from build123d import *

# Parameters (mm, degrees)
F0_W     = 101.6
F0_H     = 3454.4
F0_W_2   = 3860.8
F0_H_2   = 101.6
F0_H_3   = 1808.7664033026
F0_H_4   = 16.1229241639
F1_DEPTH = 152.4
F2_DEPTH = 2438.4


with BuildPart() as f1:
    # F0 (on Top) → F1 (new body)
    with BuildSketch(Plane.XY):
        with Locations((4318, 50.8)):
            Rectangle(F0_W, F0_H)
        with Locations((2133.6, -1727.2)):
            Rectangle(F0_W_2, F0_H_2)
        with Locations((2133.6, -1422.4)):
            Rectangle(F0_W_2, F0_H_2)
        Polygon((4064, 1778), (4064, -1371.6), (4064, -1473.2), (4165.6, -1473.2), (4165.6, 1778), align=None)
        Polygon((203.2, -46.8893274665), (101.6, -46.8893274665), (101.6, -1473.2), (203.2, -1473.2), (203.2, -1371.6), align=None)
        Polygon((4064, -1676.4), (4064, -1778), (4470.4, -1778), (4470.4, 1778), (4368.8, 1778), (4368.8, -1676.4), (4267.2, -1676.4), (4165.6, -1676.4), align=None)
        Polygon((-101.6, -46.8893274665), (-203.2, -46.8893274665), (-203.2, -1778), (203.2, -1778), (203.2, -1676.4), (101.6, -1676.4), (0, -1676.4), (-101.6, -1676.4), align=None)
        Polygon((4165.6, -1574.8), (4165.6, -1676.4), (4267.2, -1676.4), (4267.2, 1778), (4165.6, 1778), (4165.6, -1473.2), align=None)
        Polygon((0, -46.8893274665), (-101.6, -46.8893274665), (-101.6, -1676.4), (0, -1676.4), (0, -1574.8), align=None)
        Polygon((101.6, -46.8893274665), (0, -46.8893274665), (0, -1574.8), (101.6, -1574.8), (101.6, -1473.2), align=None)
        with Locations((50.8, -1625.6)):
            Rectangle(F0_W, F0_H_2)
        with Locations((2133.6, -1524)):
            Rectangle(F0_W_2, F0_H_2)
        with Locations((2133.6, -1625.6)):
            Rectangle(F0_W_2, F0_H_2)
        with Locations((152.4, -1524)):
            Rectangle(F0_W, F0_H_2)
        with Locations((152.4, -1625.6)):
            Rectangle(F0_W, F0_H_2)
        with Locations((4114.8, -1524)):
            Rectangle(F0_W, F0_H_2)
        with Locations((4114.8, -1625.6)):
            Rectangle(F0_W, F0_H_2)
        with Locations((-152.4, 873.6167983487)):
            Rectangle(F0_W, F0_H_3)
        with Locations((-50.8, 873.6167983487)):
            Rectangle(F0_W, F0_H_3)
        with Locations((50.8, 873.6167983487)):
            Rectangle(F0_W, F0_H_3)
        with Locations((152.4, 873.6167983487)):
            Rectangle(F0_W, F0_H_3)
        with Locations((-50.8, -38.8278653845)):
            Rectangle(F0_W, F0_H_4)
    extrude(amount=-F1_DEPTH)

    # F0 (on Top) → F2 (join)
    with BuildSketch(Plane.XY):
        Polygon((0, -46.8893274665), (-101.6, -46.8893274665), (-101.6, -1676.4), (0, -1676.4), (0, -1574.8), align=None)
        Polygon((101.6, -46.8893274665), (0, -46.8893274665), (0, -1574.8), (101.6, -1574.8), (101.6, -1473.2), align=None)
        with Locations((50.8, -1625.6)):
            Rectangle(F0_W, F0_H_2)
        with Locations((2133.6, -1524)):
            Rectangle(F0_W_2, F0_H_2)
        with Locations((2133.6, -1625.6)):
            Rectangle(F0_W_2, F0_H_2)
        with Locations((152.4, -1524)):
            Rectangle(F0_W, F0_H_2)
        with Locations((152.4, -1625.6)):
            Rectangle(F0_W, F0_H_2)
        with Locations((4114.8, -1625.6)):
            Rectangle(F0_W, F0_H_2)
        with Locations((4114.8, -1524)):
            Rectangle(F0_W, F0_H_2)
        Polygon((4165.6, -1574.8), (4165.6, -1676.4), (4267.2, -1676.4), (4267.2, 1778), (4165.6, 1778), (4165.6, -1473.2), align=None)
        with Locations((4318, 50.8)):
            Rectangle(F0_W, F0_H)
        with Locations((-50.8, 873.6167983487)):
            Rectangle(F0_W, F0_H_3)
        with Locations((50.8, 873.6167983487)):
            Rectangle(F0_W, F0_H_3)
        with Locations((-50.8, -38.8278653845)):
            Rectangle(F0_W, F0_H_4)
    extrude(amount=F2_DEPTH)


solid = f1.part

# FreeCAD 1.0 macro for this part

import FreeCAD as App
import Part
import Sketcher
from FreeCAD import Vector
Q = App.Units.Quantity

doc = App.newDocument("Part")
body = doc.addObject("PartDesign::Body", "Body")

sketch1 = body.newObject("Sketcher::SketchObject", "Sketch")
sketch1.AttachmentSupport = (doc.getObject("XY_Plane"), [""])
sketch1.MapMode = "FlatFace"
sketch1.addGeometry(Part.LineSegment(Vector(-203.2, -46.889327, 0), Vector(-203.2, -1778, 0)), False)
sketch1.addGeometry(Part.LineSegment(Vector(-203.2, -1778, 0), Vector(4470.4, -1778, 0)), False)
sketch1.addGeometry(Part.LineSegment(Vector(4470.4, -1778, 0), Vector(4470.4, 1778, 0)), False)
sketch1.addGeometry(Part.LineSegment(Vector(4470.4, 1778, 0), Vector(4064, 1778, 0)), False)
sketch1.addGeometry(Part.LineSegment(Vector(4064, 1778, 0), Vector(4064, -1371.6, 0)), False)
sketch1.addGeometry(Part.LineSegment(Vector(4064, -1371.6, 0), Vector(203.2, -1371.6, 0)), False)
sketch1.addGeometry(Part.LineSegment(Vector(203.2, -1371.6, 0), Vector(203.2, -46.889327, 0)), False)
sketch1.addGeometry(Part.LineSegment(Vector(203.2, -46.889327, 0), Vector(0, -46.889327, 0)), False)
sketch1.addGeometry(Part.LineSegment(Vector(0, -46.889327, 0), Vector(0, -30.766403, 0)), False)
sketch1.addGeometry(Part.LineSegment(Vector(0, -30.766403, 0), Vector(203.2, -30.766403, 0)), False)
sketch1.addGeometry(Part.LineSegment(Vector(203.2, -30.766403, 0), Vector(203.2, 1778, 0)), False)
sketch1.addGeometry(Part.LineSegment(Vector(203.2, 1778, 0), Vector(-203.2, 1778, 0)), False)
sketch1.addGeometry(Part.LineSegment(Vector(-203.2, 1778, 0), Vector(-203.2, -30.766403, 0)), False)
sketch1.addGeometry(Part.LineSegment(Vector(-203.2, -30.766403, 0), Vector(-101.6, -30.766403, 0)), False)
sketch1.addGeometry(Part.LineSegment(Vector(-101.6, -30.766403, 0), Vector(-101.6, -46.889327, 0)), False)
sketch1.addGeometry(Part.LineSegment(Vector(-101.6, -46.889327, 0), Vector(-203.2, -46.889327, 0)), False)
sketch1.addConstraint(Sketcher.Constraint("Coincident", 0, 2, 1, 1))
sketch1.addConstraint(Sketcher.Constraint("Coincident", 1, 2, 2, 1))
sketch1.addConstraint(Sketcher.Constraint("Coincident", 2, 2, 3, 1))
sketch1.addConstraint(Sketcher.Constraint("Coincident", 3, 2, 4, 1))
sketch1.addConstraint(Sketcher.Constraint("Coincident", 4, 2, 5, 1))
sketch1.addConstraint(Sketcher.Constraint("Coincident", 5, 2, 6, 1))
sketch1.addConstraint(Sketcher.Constraint("Coincident", 6, 2, 7, 1))
sketch1.addConstraint(Sketcher.Constraint("Coincident", 7, 2, 8, 1))
sketch1.addConstraint(Sketcher.Constraint("Coincident", 8, 2, 9, 1))
sketch1.addConstraint(Sketcher.Constraint("Coincident", 9, 2, 10, 1))
sketch1.addConstraint(Sketcher.Constraint("Coincident", 10, 2, 11, 1))
sketch1.addConstraint(Sketcher.Constraint("Coincident", 11, 2, 12, 1))
sketch1.addConstraint(Sketcher.Constraint("Coincident", 12, 2, 13, 1))
sketch1.addConstraint(Sketcher.Constraint("Coincident", 13, 2, 14, 1))
sketch1.addConstraint(Sketcher.Constraint("Coincident", 14, 2, 15, 1))
sketch1.addConstraint(Sketcher.Constraint("Coincident", 15, 2, 0, 1))
sketch1.addConstraint(Sketcher.Constraint("Vertical", 0))
sketch1.addConstraint(Sketcher.Constraint("Horizontal", 1))
sketch1.addConstraint(Sketcher.Constraint("Vertical", 2))
sketch1.addConstraint(Sketcher.Constraint("Horizontal", 3))
sketch1.addConstraint(Sketcher.Constraint("Vertical", 4))
sketch1.addConstraint(Sketcher.Constraint("Horizontal", 5))
sketch1.addConstraint(Sketcher.Constraint("Vertical", 6))
sketch1.addConstraint(Sketcher.Constraint("Horizontal", 7))
sketch1.addConstraint(Sketcher.Constraint("Vertical", 8))
sketch1.addConstraint(Sketcher.Constraint("Horizontal", 9))
sketch1.addConstraint(Sketcher.Constraint("Vertical", 10))
sketch1.addConstraint(Sketcher.Constraint("Horizontal", 11))
sketch1.addConstraint(Sketcher.Constraint("Vertical", 12))
sketch1.addConstraint(Sketcher.Constraint("Horizontal", 13))
sketch1.addConstraint(Sketcher.Constraint("Vertical", 14))
sketch1.addConstraint(Sketcher.Constraint("Horizontal", 15))
sketch1.addConstraint(Sketcher.Constraint("Symmetric", 0, 2, 10, 2, -1, 1))
sketch1.addConstraint(Sketcher.Constraint("Symmetric", 9, 2, 12, 2, -2))
sketch1.addConstraint(Sketcher.Constraint("Symmetric", 6, 2, 15, 2, -2))
sketch1.addConstraint(Sketcher.Constraint("PointOnObject", 7, 2, -2))
sketch1.addConstraint(Sketcher.Constraint("Horizontal", 3, 2, 10, 2))
sketch1.addConstraint(Sketcher.Constraint("Equal", 3, 11))
sketch1.addConstraint(Sketcher.Constraint("DistanceX", 1, 1, 1, 2, Q("184 in")))
sketch1.addConstraint(Sketcher.Constraint("DistanceX", 3, 2, 3, 1, Q("16 in")))
sketch1.addConstraint(Sketcher.Constraint("DistanceX", 13, 1, 13, 2, Q("4 in")))
sketch1.addConstraint(Sketcher.Constraint("DistanceY", 2, 1, 2, 2, Q("140 in")))
sketch1.addConstraint(Sketcher.Constraint("DistanceY", 4, 2, 4, 1, Q("124 in")))
sketch1.addConstraint(Sketcher.Constraint("DistanceY", 0, 2, 0, 1, Q("1731.110673 mm")))
sketch1.addConstraint(Sketcher.Constraint("DistanceY", 8, 1, 8, 2, Q("16.122924 mm")))
pad1 = body.newObject("PartDesign::Pad", "Pad")
pad1.Profile = sketch1
pad1.Length = Q("6 in")
pad1.Reversed = True

sketch2 = body.newObject("Sketcher::SketchObject", "Sketch001")
sketch2.AttachmentSupport = (doc.getObject("XY_Plane"), [""])
sketch2.MapMode = "FlatFace"
sketch2.addGeometry(Part.LineSegment(Vector(-101.6, -1676.4, 0), Vector(4368.8, -1676.4, 0)), False)
sketch2.addGeometry(Part.LineSegment(Vector(4368.8, -1676.4, 0), Vector(4368.8, 1778, 0)), False)
sketch2.addGeometry(Part.LineSegment(Vector(4368.8, 1778, 0), Vector(4165.6, 1778, 0)), False)
sketch2.addGeometry(Part.LineSegment(Vector(4165.6, 1778, 0), Vector(4165.6, -1473.2, 0)), False)
sketch2.addGeometry(Part.LineSegment(Vector(4165.6, -1473.2, 0), Vector(101.6, -1473.2, 0)), False)
sketch2.addGeometry(Part.LineSegment(Vector(101.6, -1473.2, 0), Vector(101.6, -46.889327, 0)), False)
sketch2.addGeometry(Part.LineSegment(Vector(101.6, -46.889327, 0), Vector(0, -46.889327, 0)), False)
sketch2.addGeometry(Part.LineSegment(Vector(0, -46.889327, 0), Vector(0, -30.766403, 0)), False)
sketch2.addGeometry(Part.LineSegment(Vector(0, -30.766403, 0), Vector(101.6, -30.766403, 0)), False)
sketch2.addGeometry(Part.LineSegment(Vector(101.6, -30.766403, 0), Vector(101.6, 1778, 0)), False)
sketch2.addGeometry(Part.LineSegment(Vector(101.6, 1778, 0), Vector(-101.6, 1778, 0)), False)
sketch2.addGeometry(Part.LineSegment(Vector(-101.6, 1778, 0), Vector(-101.6, -1676.4, 0)), False)
sketch2.addConstraint(Sketcher.Constraint("Coincident", 0, 2, 1, 1))
sketch2.addConstraint(Sketcher.Constraint("Coincident", 1, 2, 2, 1))
sketch2.addConstraint(Sketcher.Constraint("Coincident", 2, 2, 3, 1))
sketch2.addConstraint(Sketcher.Constraint("Coincident", 3, 2, 4, 1))
sketch2.addConstraint(Sketcher.Constraint("Coincident", 4, 2, 5, 1))
sketch2.addConstraint(Sketcher.Constraint("Coincident", 5, 2, 6, 1))
sketch2.addConstraint(Sketcher.Constraint("Coincident", 6, 2, 7, 1))
sketch2.addConstraint(Sketcher.Constraint("Coincident", 7, 2, 8, 1))
sketch2.addConstraint(Sketcher.Constraint("Coincident", 8, 2, 9, 1))
sketch2.addConstraint(Sketcher.Constraint("Coincident", 9, 2, 10, 1))
sketch2.addConstraint(Sketcher.Constraint("Coincident", 10, 2, 11, 1))
sketch2.addConstraint(Sketcher.Constraint("Coincident", 11, 2, 0, 1))
sketch2.addConstraint(Sketcher.Constraint("Horizontal", 0))
sketch2.addConstraint(Sketcher.Constraint("Vertical", 1))
sketch2.addConstraint(Sketcher.Constraint("Horizontal", 2))
sketch2.addConstraint(Sketcher.Constraint("Vertical", 3))
sketch2.addConstraint(Sketcher.Constraint("Horizontal", 4))
sketch2.addConstraint(Sketcher.Constraint("Vertical", 5))
sketch2.addConstraint(Sketcher.Constraint("Horizontal", 6))
sketch2.addConstraint(Sketcher.Constraint("Vertical", 7))
sketch2.addConstraint(Sketcher.Constraint("Horizontal", 8))
sketch2.addConstraint(Sketcher.Constraint("Vertical", 9))
sketch2.addConstraint(Sketcher.Constraint("Horizontal", 10))
sketch2.addConstraint(Sketcher.Constraint("Vertical", 11))
sketch2.addConstraint(Sketcher.Constraint("PointOnObject", 6, 2, -2))
sketch2.addConstraint(Sketcher.Constraint("Horizontal", 2, 2, 9, 2))
sketch2.addConstraint(Sketcher.Constraint("Vertical", 5, 2, 8, 2))
sketch2.addConstraint(Sketcher.Constraint("Equal", 2, 10))
sketch2.addConstraint(Sketcher.Constraint("DistanceX", 0, 1, 0, 2, Q("176 in")))
sketch2.addConstraint(Sketcher.Constraint("DistanceX", 2, 2, 2, 1, Q("8 in")))
sketch2.addConstraint(Sketcher.Constraint("DistanceX", 6, 2, 6, 1, Q("4 in")))
sketch2.addConstraint(Sketcher.Constraint("DistanceY", 1, 1, 1, 2, Q("136 in")))
sketch2.addConstraint(Sketcher.Constraint("DistanceY", 3, 2, 3, 1, Q("128 in")))
sketch2.addConstraint(Sketcher.Constraint("DistanceY", 0, 2, -1, 1, Q("66 in")))
sketch2.addConstraint(Sketcher.Constraint("DistanceY", 5, 1, 5, 2, Q("1426.310673 mm")))
sketch2.addConstraint(Sketcher.Constraint("DistanceY", 7, 1, 7, 2, Q("16.122924 mm")))
pad2 = body.newObject("PartDesign::Pad", "Pad001")
pad2.Profile = sketch2
pad2.Length = Q("96 in")

doc.recompute()
